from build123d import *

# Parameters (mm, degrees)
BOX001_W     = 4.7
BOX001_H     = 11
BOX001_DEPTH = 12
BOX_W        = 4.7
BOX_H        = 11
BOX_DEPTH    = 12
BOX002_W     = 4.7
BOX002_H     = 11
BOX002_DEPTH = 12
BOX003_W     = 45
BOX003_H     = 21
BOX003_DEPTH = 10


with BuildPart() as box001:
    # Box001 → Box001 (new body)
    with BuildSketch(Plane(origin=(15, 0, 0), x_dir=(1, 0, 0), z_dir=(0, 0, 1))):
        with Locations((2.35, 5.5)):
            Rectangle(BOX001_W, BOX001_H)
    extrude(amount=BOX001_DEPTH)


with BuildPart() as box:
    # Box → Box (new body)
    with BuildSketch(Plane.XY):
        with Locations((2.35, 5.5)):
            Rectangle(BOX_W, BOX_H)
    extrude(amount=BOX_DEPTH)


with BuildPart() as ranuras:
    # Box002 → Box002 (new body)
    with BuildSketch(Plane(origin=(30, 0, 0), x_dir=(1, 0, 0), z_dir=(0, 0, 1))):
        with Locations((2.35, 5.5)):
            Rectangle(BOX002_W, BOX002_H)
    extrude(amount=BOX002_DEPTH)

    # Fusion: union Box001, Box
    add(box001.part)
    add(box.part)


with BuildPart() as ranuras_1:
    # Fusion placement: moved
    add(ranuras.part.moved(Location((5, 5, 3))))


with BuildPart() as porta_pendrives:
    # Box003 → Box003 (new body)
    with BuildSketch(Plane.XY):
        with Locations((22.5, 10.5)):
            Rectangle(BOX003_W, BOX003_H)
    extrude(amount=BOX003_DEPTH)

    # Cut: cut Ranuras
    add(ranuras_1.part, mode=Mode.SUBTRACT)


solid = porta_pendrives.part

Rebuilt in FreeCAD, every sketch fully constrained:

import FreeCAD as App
import Part
import Sketcher

V = App.Vector

doc = App.newDocument("Part")
body = doc.addObject("PartDesign::Body", "Body")

sketch1 = body.newObject("Sketcher::SketchObject", "Sketch")
sketch1.AttachmentSupport = (doc.getObject("XY_Plane"), [""])
sketch1.MapMode = "FlatFace"
sketch1.addGeometry([
    Part.LineSegment(V(15, 11, 0), V(15, 0, 0)),
    Part.LineSegment(V(15, 0, 0), V(19.7, 0, 0)),
    Part.LineSegment(V(19.7, 0, 0), V(19.7, 11, 0)),
    Part.LineSegment(V(19.7, 11, 0), V(15, 11, 0)),
], False)
sketch1.addConstraint([
    Sketcher.Constraint("Coincident", 0, 2, 1, 1),
    Sketcher.Constraint("Coincident", 1, 2, 2, 1),
    Sketcher.Constraint("Coincident", 2, 2, 3, 1),
    Sketcher.Constraint("Coincident", 3, 2, 0, 1),
    Sketcher.Constraint("Vertical", 0),
    Sketcher.Constraint("Horizontal", 1),
    Sketcher.Constraint("Vertical", 2),
    Sketcher.Constraint("Horizontal", 3),
    Sketcher.Constraint("PointOnObject", 0, 2, -1),
    Sketcher.Constraint("DistanceY", 0, 2, 0, 1, 11.0),
    Sketcher.Constraint("DistanceX", 1, 1, 1, 2, 4.7),
    Sketcher.Constraint("DistanceX", -1, 1, 0, 2, 15.0),
])
pad1 = body.newObject("PartDesign::Pad", "Pad")
pad1.Profile = sketch1
pad1.Length = 12
body2 = doc.addObject("PartDesign::Body", "Body001")

sketch2 = body2.newObject("Sketcher::SketchObject", "Sketch001")
sketch2.AttachmentSupport = (doc.getObject("XY_Plane001"), [""])
sketch2.MapMode = "FlatFace"
sketch2.addGeometry([
    Part.LineSegment(V(0, 11, 0), V(0, 0, 0)),
    Part.LineSegment(V(0, 0, 0), V(4.7, 0, 0)),
    Part.LineSegment(V(4.7, 0, 0), V(4.7, 11, 0)),
    Part.LineSegment(V(4.7, 11, 0), V(0, 11, 0)),
], False)
sketch2.addConstraint([
    Sketcher.Constraint("Coincident", 0, 2, 1, 1),
    Sketcher.Constraint("Coincident", 1, 2, 2, 1),
    Sketcher.Constraint("Coincident", 2, 2, 3, 1),
    Sketcher.Constraint("Coincident", 3, 2, 0, 1),
    Sketcher.Constraint("Vertical", 0),
    Sketcher.Constraint("Horizontal", 1),
    Sketcher.Constraint("Vertical", 2),
    Sketcher.Constraint("Horizontal", 3),
    Sketcher.Constraint("Coincident", 0, 2, -1, 1),
    Sketcher.Constraint("DistanceY", 0, 2, 0, 1, 11.0),
    Sketcher.Constraint("DistanceX", 1, 1, 1, 2, 4.7),
])
pad2 = body2.newObject("PartDesign::Pad", "Pad001")
pad2.Profile = sketch2
pad2.Length = 12
body3 = doc.addObject("PartDesign::Body", "Body002")
body3.AllowCompound = True

sketch3 = body3.newObject("Sketcher::SketchObject", "Sketch002")
sketch3.AttachmentSupport = (doc.getObject("XY_Plane002"), [""])
sketch3.MapMode = "FlatFace"
sketch3.addGeometry([
    Part.LineSegment(V(30, 11, 0), V(30, 0, 0)),
    Part.LineSegment(V(30, 0, 0), V(34.7, 0, 0)),
    Part.LineSegment(V(34.7, 0, 0), V(34.7, 11, 0)),
    Part.LineSegment(V(34.7, 11, 0), V(30, 11, 0)),
], False)
sketch3.addConstraint([
    Sketcher.Constraint("Coincident", 0, 2, 1, 1),
    Sketcher.Constraint("Coincident", 1, 2, 2, 1),
    Sketcher.Constraint("Coincident", 2, 2, 3, 1),
    Sketcher.Constraint("Coincident", 3, 2, 0, 1),
    Sketcher.Constraint("Vertical", 0),
    Sketcher.Constraint("Horizontal", 1),
    Sketcher.Constraint("Vertical", 2),
    Sketcher.Constraint("Horizontal", 3),
    Sketcher.Constraint("PointOnObject", 0, 2, -1),
    Sketcher.Constraint("DistanceY", 0, 2, 0, 1, 11.0),
    Sketcher.Constraint("DistanceX", 1, 1, 1, 2, 4.7),
    Sketcher.Constraint("DistanceX", -1, 1, 0, 2, 30.0),
])
pad3 = body3.newObject("PartDesign::Pad", "Pad002")
pad3.Profile = sketch3
pad3.Length = 12
doc.recompute()

boolean = body3.newObject("PartDesign::Boolean", "Boolean")
boolean.Type = "Fuse"
boolean.addObjects([body])
doc.recompute()

boolean2 = body3.newObject("PartDesign::Boolean", "Boolean001")
boolean2.Type = "Fuse"
boolean2.addObjects([body2])
body4 = doc.addObject("PartDesign::Body", "Body003")
body4.AllowCompound = True
doc.recompute()

body3.Placement = App.Placement(V(5, 5, 3), App.Rotation(V(0, 0, 1), 0))
boolean3 = body4.newObject("PartDesign::Boolean", "Boolean002")
boolean3.Type = "Fuse"
boolean3.addObjects([body3])
body5 = doc.addObject("PartDesign::Body", "Body004")

sketch4 = body5.newObject("Sketcher::SketchObject", "Sketch003")
sketch4.AttachmentSupport = (doc.getObject("XY_Plane004"), [""])
sketch4.MapMode = "FlatFace"
sketch4.addGeometry([
    Part.LineSegment(V(0, 21, 0), V(0, 0, 0)),
    Part.LineSegment(V(0, 0, 0), V(45, 0, 0)),
    Part.LineSegment(V(45, 0, 0), V(45, 21, 0)),
    Part.LineSegment(V(45, 21, 0), V(0, 21, 0)),
], False)
sketch4.addConstraint([
    Sketcher.Constraint("Coincident", 0, 2, 1, 1),
    Sketcher.Constraint("Coincident", 1, 2, 2, 1),
    Sketcher.Constraint("Coincident", 2, 2, 3, 1),
    Sketcher.Constraint("Coincident", 3, 2, 0, 1),
    Sketcher.Constraint("Vertical", 0),
    Sketcher.Constraint("Horizontal", 1),
    Sketcher.Constraint("Vertical", 2),
    Sketcher.Constraint("Horizontal", 3),
    Sketcher.Constraint("Coincident", 0, 2, -1, 1),
    Sketcher.Constraint("DistanceX", 1, 1, 1, 2, 45.0),
    Sketcher.Constraint("DistanceY", 0, 2, 0, 1, 21.0),
])
pad4 = body5.newObject("PartDesign::Pad", "Pad003")
pad4.Profile = sketch4
pad4.Length = 10
doc.recompute()

boolean4 = body5.newObject("PartDesign::Boolean", "Boolean003")
boolean4.Type = "Cut"
boolean4.addObjects([body4])

doc.recompute()
